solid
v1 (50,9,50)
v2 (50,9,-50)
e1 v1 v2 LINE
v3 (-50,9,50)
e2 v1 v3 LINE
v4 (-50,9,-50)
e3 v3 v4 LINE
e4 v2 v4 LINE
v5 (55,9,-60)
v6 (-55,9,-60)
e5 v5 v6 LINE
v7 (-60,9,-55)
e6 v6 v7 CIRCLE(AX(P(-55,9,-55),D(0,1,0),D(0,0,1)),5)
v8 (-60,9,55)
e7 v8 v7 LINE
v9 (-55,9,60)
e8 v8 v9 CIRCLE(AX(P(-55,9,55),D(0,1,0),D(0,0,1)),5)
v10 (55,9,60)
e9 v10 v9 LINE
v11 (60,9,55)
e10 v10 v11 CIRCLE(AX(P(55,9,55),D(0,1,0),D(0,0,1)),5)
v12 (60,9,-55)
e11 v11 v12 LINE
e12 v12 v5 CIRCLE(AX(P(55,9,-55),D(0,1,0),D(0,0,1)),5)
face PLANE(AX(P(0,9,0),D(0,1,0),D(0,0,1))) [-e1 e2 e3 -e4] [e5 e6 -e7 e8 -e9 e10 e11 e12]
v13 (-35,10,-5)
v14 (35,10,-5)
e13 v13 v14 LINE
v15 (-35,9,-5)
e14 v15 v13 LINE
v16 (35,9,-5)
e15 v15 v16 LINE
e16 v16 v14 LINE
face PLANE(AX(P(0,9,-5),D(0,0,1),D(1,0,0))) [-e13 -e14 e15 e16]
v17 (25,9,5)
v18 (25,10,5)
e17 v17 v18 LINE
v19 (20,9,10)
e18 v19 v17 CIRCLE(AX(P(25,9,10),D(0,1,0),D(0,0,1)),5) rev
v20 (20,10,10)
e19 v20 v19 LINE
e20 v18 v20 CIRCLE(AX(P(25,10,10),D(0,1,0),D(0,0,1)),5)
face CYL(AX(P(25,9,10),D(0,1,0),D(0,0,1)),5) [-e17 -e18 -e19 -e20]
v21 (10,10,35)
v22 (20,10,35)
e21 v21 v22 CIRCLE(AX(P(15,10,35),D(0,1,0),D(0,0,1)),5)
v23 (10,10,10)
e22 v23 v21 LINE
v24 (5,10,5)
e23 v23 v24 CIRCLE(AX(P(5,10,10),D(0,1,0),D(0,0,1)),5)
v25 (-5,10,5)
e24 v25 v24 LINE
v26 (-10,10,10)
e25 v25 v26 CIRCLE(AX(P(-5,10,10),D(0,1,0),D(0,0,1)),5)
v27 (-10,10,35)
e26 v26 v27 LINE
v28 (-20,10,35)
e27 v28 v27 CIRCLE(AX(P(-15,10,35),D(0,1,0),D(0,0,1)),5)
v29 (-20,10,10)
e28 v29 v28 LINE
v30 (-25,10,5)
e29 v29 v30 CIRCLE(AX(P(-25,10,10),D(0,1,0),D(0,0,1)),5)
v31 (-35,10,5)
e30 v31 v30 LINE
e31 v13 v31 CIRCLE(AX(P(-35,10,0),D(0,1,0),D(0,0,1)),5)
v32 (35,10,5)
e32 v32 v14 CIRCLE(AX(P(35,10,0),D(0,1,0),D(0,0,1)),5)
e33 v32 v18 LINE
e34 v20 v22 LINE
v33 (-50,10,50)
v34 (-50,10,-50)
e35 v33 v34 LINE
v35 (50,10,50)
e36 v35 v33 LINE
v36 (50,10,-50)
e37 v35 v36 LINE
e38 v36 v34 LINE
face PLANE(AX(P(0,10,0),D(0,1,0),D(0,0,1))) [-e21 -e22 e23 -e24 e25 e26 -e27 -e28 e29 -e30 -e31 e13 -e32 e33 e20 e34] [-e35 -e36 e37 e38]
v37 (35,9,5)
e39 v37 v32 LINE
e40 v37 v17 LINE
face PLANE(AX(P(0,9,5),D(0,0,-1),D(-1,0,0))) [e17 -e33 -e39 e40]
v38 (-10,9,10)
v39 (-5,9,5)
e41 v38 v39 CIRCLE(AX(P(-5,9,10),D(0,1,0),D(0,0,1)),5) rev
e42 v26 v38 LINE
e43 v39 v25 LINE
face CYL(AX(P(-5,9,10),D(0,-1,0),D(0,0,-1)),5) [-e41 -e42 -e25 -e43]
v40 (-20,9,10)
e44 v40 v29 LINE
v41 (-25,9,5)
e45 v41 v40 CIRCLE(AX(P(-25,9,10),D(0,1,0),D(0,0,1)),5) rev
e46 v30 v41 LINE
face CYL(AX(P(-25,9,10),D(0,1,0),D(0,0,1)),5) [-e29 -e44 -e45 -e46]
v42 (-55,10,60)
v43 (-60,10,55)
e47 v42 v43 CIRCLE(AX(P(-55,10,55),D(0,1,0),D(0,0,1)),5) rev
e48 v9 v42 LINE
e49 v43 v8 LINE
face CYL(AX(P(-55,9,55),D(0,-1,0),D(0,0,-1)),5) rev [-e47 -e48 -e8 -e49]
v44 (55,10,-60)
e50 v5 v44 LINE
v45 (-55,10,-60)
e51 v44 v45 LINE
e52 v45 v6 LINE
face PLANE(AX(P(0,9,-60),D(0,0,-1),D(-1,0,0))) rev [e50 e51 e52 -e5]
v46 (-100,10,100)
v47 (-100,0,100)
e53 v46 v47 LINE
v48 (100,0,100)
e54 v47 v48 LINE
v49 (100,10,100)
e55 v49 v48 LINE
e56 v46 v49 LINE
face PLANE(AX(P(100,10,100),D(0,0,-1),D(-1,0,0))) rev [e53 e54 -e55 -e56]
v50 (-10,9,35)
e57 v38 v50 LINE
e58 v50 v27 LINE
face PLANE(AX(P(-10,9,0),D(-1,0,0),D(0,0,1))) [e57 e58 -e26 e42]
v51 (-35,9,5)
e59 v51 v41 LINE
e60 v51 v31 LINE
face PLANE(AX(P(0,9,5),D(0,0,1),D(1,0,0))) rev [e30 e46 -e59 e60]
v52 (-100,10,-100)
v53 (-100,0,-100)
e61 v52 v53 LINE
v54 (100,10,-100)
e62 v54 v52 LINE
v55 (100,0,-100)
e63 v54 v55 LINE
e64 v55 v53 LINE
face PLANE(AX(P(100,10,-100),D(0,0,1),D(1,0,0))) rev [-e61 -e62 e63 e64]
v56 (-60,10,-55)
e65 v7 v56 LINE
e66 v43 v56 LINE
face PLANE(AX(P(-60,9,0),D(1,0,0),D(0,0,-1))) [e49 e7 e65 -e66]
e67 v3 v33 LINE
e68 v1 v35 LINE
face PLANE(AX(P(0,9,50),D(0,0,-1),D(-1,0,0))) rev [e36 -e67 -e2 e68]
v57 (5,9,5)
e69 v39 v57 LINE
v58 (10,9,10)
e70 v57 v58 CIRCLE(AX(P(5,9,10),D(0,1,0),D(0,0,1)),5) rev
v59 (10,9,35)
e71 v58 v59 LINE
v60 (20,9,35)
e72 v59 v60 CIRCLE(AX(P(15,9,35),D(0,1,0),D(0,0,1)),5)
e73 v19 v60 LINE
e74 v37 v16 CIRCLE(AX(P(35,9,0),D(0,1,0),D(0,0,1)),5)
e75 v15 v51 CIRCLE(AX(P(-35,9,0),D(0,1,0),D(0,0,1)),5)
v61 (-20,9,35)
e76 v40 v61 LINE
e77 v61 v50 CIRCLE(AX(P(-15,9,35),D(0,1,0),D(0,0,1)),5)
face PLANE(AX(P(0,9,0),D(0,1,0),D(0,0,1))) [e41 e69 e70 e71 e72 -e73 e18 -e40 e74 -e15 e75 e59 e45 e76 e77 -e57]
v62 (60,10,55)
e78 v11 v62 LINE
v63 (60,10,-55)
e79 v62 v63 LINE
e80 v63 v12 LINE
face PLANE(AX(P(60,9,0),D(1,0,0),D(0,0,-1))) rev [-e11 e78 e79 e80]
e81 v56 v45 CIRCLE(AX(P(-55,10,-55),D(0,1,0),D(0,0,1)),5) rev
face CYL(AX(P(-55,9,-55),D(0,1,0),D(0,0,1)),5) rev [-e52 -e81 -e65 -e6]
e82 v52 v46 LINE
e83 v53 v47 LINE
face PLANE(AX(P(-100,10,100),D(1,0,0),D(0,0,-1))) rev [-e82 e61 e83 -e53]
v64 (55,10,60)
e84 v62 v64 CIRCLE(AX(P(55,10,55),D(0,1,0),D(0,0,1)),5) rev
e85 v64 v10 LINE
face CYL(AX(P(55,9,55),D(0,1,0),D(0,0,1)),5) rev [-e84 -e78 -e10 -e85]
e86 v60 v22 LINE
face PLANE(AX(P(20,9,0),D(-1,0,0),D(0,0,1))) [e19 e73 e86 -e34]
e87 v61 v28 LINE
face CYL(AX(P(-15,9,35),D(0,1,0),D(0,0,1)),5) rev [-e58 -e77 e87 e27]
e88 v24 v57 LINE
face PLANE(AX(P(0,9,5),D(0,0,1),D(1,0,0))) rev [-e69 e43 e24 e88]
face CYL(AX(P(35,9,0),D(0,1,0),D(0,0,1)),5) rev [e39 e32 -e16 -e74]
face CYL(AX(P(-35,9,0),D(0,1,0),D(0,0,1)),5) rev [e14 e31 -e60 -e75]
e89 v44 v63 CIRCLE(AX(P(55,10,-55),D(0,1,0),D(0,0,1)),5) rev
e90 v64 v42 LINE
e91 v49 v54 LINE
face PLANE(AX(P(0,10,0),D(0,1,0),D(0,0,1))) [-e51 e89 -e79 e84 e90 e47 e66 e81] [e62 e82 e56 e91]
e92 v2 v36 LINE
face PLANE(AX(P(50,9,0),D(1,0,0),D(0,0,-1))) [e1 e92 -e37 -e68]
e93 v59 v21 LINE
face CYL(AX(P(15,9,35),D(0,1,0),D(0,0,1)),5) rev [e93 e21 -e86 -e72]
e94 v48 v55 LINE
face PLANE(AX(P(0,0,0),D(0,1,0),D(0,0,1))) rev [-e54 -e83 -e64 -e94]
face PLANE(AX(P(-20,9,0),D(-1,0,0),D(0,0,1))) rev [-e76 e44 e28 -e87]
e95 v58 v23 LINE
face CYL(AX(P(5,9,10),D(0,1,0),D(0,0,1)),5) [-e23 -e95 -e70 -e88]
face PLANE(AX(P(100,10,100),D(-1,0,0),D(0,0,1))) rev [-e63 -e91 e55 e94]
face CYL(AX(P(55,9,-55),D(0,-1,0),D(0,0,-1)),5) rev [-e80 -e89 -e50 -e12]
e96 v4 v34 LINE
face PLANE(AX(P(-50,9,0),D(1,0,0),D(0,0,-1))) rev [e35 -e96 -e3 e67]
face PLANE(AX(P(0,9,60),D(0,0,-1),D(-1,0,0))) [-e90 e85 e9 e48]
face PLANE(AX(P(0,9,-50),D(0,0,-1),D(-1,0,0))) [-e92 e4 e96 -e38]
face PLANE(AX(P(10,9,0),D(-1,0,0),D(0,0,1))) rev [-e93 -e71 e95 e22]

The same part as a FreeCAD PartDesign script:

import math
import FreeCAD as App
import Part
import Sketcher
from FreeCAD import Vector
Q = App.Units.Quantity


def edges_at(feature, points):
    """Names of the edges that pass closest to the given points."""
    edges = feature.Shape.Edges
    near = lambda p: min(range(len(edges)), key=lambda i: edges[i].distToShape(Part.Vertex(*p))[0])
    return sorted({f"Edge{near(p) + 1}" for p in points})

doc = App.newDocument("Part")
body = doc.addObject("PartDesign::Body", "Body")

# Sketch on XZ plane
sketch1 = body.newObject("Sketcher::SketchObject", "Sketch")
sketch1.AttachmentSupport = (doc.getObject("XZ_Plane"), [""])
sketch1.MapMode = "FlatFace"
sketch1.addGeometry([
    Part.LineSegment(Vector(-100, -100, 0), Vector(-100, 100, 0)),
    Part.LineSegment(Vector(-100, 100, 0), Vector(100, 100, 0)),
    Part.LineSegment(Vector(100, 100, 0), Vector(100, -100, 0)),
    Part.LineSegment(Vector(100, -100, 0), Vector(-100, -100, 0)),
], False)
sketch1.addConstraint([
    Sketcher.Constraint("Coincident", 0, 2, 1, 1),
    Sketcher.Constraint("Coincident", 1, 2, 2, 1),
    Sketcher.Constraint("Coincident", 2, 2, 3, 1),
    Sketcher.Constraint("Coincident", 3, 2, 0, 1),
    Sketcher.Constraint("Vertical", 0),
    Sketcher.Constraint("Horizontal", 1),
    Sketcher.Constraint("Vertical", 2),
    Sketcher.Constraint("Horizontal", 3),
    Sketcher.Constraint("Symmetric", 0, 2, 2, 2, -1, 1),
    Sketcher.Constraint("Equal", 3, 0),
    Sketcher.Constraint("DistanceX", 1, 1, 1, 2, Q("200 mm")),
])
pad1 = body.newObject("PartDesign::Pad", "Pad")
pad1.Profile = sketch1
pad1.Length = 10
pad1.Reversed = True

# Sketch on XZ plane
sketch2 = body.newObject("Sketcher::SketchObject", "Sketch001")
sketch2.AttachmentSupport = (doc.getObject("XZ_Plane"), [""])
sketch2.MapMode = "FlatFace"
sketch2.AttachmentOffset = App.Placement(Vector(0, 0, -10), App.Rotation())
sketch2.addGeometry([
    Part.LineSegment(Vector(-60, -60, 0), Vector(-60, 60, 0)),  # 0
    Part.LineSegment(Vector(-60, 60, 0), Vector(60, 60, 0)),  # 1
    Part.LineSegment(Vector(60, 60, 0), Vector(60, -60, 0)),  # 2
    Part.LineSegment(Vector(60, -60, 0), Vector(-60, -60, 0)),  # 3
    Part.LineSegment(Vector(50, 50, 0), Vector(-50, 50, 0)),  # 4
    Part.LineSegment(Vector(-50, 50, 0), Vector(-50, -50, 0)),  # 5
    Part.LineSegment(Vector(-50, -50, 0), Vector(50, -50, 0)),  # 6
    Part.LineSegment(Vector(50, -50, 0), Vector(50, 50, 0)),  # 7
    Part.LineSegment(Vector(35, -5, 0), Vector(-35, -5, 0)),  # 8
    Part.ArcOfCircle(Part.Circle(Vector(-35, 0, 0), Vector(0, 0, 1), 5), math.radians(90), math.radians(270)),  # 9
    Part.LineSegment(Vector(-35, 5, 0), Vector(-20, 5, 0)),  # 10
    Part.LineSegment(Vector(-20, 5, 0), Vector(-20, 35, 0)),  # 11
    Part.ArcOfCircle(Part.Circle(Vector(-15, 35, 0), Vector(0, 0, 1), 5), math.radians(0), math.radians(180)),  # 12
    Part.LineSegment(Vector(-10, 35, 0), Vector(-10, 5, 0)),  # 13
    Part.LineSegment(Vector(-10, 5, 0), Vector(10, 5, 0)),  # 14
    Part.LineSegment(Vector(10, 5, 0), Vector(10, 35, 0)),  # 15
    Part.ArcOfCircle(Part.Circle(Vector(15, 35, 0), Vector(0, 0, 1), 5), math.radians(0), math.radians(180)),  # 16
    Part.LineSegment(Vector(20, 35, 0), Vector(20, 5, 0)),  # 17
    Part.LineSegment(Vector(20, 5, 0), Vector(35, 5, 0)),  # 18
    Part.ArcOfCircle(Part.Circle(Vector(35, 0, 0), Vector(0, 0, 1), 5), math.radians(-90), math.radians(90)),  # 19
], False)
sketch2.addConstraint([
    Sketcher.Constraint("Coincident", 0, 2, 1, 1),
    Sketcher.Constraint("Coincident", 1, 2, 2, 1),
    Sketcher.Constraint("Coincident", 2, 2, 3, 1),
    Sketcher.Constraint("Coincident", 3, 2, 0, 1),
    Sketcher.Constraint("Coincident", 4, 2, 5, 1),
    Sketcher.Constraint("Coincident", 5, 2, 6, 1),
    Sketcher.Constraint("Coincident", 6, 2, 7, 1),
    Sketcher.Constraint("Coincident", 7, 2, 4, 1),
    Sketcher.Constraint("Tangent", 8, 2, 9, 2),
    Sketcher.Constraint("Tangent", 9, 1, 10, 1),
    Sketcher.Constraint("Coincident", 10, 2, 11, 1),
    Sketcher.Constraint("Tangent", 11, 2, 12, 2),
    Sketcher.Constraint("Tangent", 12, 1, 13, 1),
    Sketcher.Constraint("Coincident", 13, 2, 14, 1),
    Sketcher.Constraint("Coincident", 14, 2, 15, 1),
    Sketcher.Constraint("Tangent", 15, 2, 16, 2),
    Sketcher.Constraint("Tangent", 16, 1, 17, 1),
    Sketcher.Constraint("Coincident", 17, 2, 18, 1),
    Sketcher.Constraint("Tangent", 18, 2, 19, 2),
    Sketcher.Constraint("Tangent", 19, 1, 8, 1),
    Sketcher.Constraint("Vertical", 0),
    Sketcher.Constraint("Horizontal", 1),
    Sketcher.Constraint("Vertical", 2),
    Sketcher.Constraint("Horizontal", 3),
    Sketcher.Constraint("Horizontal", 4),
    Sketcher.Constraint("Vertical", 5),
    Sketcher.Constraint("Horizontal", 6),
    Sketcher.Constraint("Vertical", 7),
    Sketcher.Constraint("Horizontal", 8),
    Sketcher.Constraint("Horizontal", 10),
    Sketcher.Constraint("Vertical", 11),
    Sketcher.Constraint("Vertical", 13),
    Sketcher.Constraint("Horizontal", 14),
    Sketcher.Constraint("Vertical", 15),
    Sketcher.Constraint("Vertical", 17),
    Sketcher.Constraint("Horizontal", 18),
    Sketcher.Constraint("Equal", 9, 12),
    Sketcher.Constraint("Equal", 12, 16),
    Sketcher.Constraint("Equal", 16, 19),
    Sketcher.Constraint("Symmetric", 9, 3, 19, 3, -1, 1),
    Sketcher.Constraint("Symmetric", 0, 2, 2, 2, -1, 1),
    Sketcher.Constraint("Symmetric", 4, 2, 6, 2, -1, 1),
    Sketcher.Constraint("Symmetric", 12, 3, 16, 3, -2),
    Sketcher.Constraint("Horizontal", 10, 2, 13, 2),
    Sketcher.Constraint("Equal", 3, 0),
    Sketcher.Constraint("Equal", 6, 5),
    Sketcher.Constraint("Radius", 9, Q("5 mm")),
    Sketcher.Constraint("DistanceX", 1, 1, 1, 2, Q("120 mm")),
    Sketcher.Constraint("DistanceX", 4, 2, 4, 1, Q("100 mm")),
    Sketcher.Constraint("DistanceX", 8, 2, 8, 1, Q("70 mm")),
    Sketcher.Constraint("DistanceX", 10, 1, 10, 2, Q("15 mm")),
    Sketcher.Constraint("DistanceY", 11, 1, 11, 2, Q("30 mm")),
])
pocket1 = body.newObject("PartDesign::Pocket", "Pocket")
pocket1.Profile = sketch2
pocket1.Length = 1
pocket1.Reversed = True
doc.recompute()

fillet = body.newObject("PartDesign::Fillet", "Fillet")
fillet.Base = (pocket1, edges_at(pocket1, [
    (20, 9.5, 5),
    (10, 9.5, 5),
    (-10, 9.5, 5),
    (-20, 9.5, 5),
    (-60, 9.5, 60),
    (-60, 9.5, -60),
    (60, 9.5, -60),
    (60, 9.5, 60),
]))
fillet.Radius = 5

doc.recompute()
